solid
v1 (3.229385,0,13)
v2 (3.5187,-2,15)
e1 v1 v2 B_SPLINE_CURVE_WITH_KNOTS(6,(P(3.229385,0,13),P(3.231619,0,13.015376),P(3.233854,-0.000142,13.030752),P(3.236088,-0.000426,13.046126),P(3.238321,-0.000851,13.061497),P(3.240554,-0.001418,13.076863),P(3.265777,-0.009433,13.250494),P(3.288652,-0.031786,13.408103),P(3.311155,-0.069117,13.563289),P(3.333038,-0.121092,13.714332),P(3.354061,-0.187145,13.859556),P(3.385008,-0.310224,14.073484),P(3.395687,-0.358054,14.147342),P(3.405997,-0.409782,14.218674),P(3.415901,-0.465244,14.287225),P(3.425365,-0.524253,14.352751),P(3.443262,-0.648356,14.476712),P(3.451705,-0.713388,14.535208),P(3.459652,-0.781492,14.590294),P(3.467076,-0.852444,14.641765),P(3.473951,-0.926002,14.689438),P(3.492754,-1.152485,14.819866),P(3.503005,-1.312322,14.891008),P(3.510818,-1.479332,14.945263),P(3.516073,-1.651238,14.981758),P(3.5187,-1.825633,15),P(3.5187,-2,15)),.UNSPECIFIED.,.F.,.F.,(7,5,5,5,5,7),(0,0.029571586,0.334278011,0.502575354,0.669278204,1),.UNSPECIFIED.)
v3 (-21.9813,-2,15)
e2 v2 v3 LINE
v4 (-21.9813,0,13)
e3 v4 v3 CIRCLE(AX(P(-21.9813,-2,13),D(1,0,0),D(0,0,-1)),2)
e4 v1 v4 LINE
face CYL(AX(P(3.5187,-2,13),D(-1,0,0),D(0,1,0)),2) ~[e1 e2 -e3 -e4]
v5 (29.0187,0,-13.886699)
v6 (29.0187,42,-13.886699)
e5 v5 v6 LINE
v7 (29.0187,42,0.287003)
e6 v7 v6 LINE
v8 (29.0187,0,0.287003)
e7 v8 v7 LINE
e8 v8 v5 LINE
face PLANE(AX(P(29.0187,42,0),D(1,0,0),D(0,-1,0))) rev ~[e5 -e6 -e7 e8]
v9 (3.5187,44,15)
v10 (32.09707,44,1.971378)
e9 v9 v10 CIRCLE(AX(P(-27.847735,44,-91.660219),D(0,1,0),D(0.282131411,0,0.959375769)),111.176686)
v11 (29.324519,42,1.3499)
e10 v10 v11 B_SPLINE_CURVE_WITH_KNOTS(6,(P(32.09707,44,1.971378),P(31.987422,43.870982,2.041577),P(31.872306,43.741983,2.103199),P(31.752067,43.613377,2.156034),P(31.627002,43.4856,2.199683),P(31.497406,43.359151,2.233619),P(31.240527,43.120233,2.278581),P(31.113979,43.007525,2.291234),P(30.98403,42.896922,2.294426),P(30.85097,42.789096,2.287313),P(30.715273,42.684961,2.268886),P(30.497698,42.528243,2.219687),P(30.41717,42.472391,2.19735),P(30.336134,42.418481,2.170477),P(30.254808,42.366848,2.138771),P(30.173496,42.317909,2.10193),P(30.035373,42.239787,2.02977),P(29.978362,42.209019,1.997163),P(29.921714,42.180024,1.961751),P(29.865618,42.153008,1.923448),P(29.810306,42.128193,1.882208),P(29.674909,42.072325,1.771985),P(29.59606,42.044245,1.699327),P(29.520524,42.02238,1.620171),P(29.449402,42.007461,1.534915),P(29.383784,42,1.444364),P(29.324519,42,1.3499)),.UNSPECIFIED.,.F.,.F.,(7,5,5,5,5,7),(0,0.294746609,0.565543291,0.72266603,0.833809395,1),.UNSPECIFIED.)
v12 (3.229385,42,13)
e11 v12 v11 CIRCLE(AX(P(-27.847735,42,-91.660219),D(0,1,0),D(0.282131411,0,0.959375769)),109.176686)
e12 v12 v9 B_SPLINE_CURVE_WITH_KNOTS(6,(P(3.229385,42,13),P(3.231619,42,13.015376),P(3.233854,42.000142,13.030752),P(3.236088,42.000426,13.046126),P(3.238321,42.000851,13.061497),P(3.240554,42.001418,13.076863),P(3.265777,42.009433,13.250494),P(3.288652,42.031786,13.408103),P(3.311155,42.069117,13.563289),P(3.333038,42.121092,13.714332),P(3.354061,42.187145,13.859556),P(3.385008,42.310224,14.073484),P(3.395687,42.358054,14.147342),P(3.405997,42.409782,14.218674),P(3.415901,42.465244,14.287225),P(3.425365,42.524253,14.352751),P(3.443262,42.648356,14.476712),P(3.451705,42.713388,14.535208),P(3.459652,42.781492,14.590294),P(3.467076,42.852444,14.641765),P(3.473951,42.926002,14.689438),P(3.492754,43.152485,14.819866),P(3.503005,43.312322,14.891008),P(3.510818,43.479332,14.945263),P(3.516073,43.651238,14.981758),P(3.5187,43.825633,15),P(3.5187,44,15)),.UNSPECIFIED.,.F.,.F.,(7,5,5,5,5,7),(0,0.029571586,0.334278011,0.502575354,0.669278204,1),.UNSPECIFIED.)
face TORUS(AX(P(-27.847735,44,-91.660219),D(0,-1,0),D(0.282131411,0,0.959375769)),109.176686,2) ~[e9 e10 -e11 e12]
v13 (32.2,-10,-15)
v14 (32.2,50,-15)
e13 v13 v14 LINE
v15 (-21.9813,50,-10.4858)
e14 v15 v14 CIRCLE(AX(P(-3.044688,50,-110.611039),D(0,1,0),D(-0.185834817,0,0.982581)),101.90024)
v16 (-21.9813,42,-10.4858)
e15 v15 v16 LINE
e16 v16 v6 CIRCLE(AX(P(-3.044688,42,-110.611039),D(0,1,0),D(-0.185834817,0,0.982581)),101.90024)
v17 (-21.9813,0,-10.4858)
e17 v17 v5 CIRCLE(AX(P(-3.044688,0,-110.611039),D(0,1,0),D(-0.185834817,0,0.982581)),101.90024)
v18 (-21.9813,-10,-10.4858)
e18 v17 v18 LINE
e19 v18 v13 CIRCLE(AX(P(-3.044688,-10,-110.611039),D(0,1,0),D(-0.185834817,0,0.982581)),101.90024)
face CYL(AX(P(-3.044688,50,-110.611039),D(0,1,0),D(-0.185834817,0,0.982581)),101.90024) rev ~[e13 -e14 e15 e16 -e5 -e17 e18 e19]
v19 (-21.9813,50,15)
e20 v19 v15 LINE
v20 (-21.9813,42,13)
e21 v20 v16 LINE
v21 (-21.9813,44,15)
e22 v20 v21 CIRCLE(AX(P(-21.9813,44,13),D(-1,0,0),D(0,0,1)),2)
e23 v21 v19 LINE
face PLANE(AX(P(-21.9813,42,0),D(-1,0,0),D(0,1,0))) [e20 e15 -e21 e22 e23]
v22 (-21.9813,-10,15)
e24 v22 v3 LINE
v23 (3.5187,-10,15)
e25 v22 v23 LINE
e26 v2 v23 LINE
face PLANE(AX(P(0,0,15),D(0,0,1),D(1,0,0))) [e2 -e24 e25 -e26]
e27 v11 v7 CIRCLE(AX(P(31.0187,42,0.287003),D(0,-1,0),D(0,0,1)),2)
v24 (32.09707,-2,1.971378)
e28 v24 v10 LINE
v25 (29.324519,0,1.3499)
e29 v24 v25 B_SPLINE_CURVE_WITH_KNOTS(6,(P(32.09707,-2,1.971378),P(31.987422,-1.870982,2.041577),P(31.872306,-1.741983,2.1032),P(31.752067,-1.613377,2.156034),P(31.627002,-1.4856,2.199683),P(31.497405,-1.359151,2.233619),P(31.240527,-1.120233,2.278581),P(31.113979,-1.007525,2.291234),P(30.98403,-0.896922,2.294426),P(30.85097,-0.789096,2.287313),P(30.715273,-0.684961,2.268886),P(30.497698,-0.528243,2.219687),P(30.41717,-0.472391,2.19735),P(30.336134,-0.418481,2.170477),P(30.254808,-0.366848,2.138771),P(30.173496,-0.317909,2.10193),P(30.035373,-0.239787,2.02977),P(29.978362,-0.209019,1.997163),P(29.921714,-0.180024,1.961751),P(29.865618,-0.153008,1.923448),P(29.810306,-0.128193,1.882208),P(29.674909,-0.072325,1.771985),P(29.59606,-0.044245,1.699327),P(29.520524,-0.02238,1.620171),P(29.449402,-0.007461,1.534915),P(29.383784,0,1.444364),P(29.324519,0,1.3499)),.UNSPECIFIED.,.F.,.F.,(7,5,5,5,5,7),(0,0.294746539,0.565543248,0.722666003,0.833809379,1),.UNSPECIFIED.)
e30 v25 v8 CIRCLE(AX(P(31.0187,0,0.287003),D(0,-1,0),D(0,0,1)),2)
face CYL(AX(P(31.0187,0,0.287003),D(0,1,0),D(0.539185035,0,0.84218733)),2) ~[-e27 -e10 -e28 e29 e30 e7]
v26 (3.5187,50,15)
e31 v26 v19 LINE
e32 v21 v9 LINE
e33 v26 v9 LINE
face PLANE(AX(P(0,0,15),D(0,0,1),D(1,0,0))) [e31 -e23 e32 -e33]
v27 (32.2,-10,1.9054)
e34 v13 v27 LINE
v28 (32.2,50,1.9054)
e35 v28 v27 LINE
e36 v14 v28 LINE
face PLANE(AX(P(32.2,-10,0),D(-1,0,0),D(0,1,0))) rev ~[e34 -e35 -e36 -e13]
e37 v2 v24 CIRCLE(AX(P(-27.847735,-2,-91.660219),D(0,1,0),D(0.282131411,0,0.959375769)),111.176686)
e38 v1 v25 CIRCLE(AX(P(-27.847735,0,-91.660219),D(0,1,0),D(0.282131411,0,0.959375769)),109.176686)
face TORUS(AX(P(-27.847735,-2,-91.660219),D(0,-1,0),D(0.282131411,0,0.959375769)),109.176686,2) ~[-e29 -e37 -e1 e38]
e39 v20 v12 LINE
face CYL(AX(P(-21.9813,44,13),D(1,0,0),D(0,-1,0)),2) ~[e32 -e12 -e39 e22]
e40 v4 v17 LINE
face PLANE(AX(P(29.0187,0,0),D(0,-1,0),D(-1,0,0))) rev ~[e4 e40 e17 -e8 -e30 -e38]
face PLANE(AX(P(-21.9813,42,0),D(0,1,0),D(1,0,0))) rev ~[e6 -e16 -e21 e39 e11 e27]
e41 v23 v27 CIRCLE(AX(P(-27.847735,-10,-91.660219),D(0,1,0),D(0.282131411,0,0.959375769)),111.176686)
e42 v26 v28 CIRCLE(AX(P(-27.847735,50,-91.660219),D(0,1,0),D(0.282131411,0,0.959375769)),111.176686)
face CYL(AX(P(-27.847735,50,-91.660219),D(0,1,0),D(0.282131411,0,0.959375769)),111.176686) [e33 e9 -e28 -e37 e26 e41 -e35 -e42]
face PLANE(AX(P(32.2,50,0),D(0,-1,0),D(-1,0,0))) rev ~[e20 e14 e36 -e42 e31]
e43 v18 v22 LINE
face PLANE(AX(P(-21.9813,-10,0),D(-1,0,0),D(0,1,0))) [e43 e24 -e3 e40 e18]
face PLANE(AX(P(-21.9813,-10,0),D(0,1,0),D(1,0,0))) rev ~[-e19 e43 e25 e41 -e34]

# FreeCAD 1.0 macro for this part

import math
import FreeCAD as App
import Part
import Sketcher
Q = App.Units.Quantity


def edges_at(feature, points):
    """Names of the edges that pass closest to the given points."""
    edges = feature.Shape.Edges
    near = lambda p: min(range(len(edges)), key=lambda i: edges[i].distToShape(Part.Vertex(*p))[0])
    return sorted({f"Edge{near(p) + 1}" for p in points})


def add_polygon(sketch, points):
    """Adds a closed chain of lines whose ends are joined by coincident constraints."""
    first, n = sketch.GeometryCount, len(points)
    for a, b in zip(points, points[1:] + points[:1]):
        sketch.addGeometry(Part.LineSegment(App.Vector(*a, 0), App.Vector(*b, 0)), False)
    for i in range(n):
        sketch.addConstraint(Sketcher.Constraint("Coincident", first + i, 2, first + (i + 1) % n, 1))

doc = App.newDocument("Part")
params = doc.addObject("Spreadsheet::Sheet", "Params")
for row, (alias, value) in enumerate([
    ("sketch1_width", "51 mm"),
    ("sketch1_height", "10 mm"),
    ("sketch1_height2", "60 mm"),
    ("sketch1_height3", "8 mm"),
    ("pad1_length", "30 mm"),
    ("sketch2_radius", "101.9 mm"),
    ("fillet_radius", "2 mm"),
], start=1):
    params.set(f"A{row}", alias)
    params.set(f"B{row}", "=" + value)
    params.setAlias(f"B{row}", alias)

body = doc.addObject("PartDesign::Body", "Body")

# Sketch on XY plane
sketch1 = body.newObject("Sketcher::SketchObject", "Sketch")
sketch1.AttachmentSupport = (doc.getObject("XY_Plane"), [""])
sketch1.MapMode = "FlatFace"
add_polygon(sketch1, [(-22, 0), (-22, -10), (32, -10), (32, 50), (-22, 50), (-22, 42), (29, 42), (29, 0)])  # lines 0-7
sketch1.addConstraint([
    Sketcher.Constraint("Vertical", 0),
    Sketcher.Constraint("Horizontal", 1),
    Sketcher.Constraint("Vertical", 2),
    Sketcher.Constraint("Horizontal", 3),
    Sketcher.Constraint("Vertical", 4),
    Sketcher.Constraint("Horizontal", 5),
    Sketcher.Constraint("Vertical", 6),
    Sketcher.Constraint("Horizontal", 7),
    Sketcher.Constraint("PointOnObject", 6, 2, -1),
    Sketcher.Constraint("Vertical", 0, 2, 3, 2),
    Sketcher.Constraint("DistanceX", 5, 1, 5, 2, Q("51 mm")),
    Sketcher.Constraint("DistanceY", 0, 2, 0, 1, Q("10 mm")),
    Sketcher.Constraint("DistanceY", 2, 1, 2, 2, Q("60 mm")),
    Sketcher.Constraint("DistanceY", 4, 2, 4, 1, Q("8 mm")),
    Sketcher.Constraint("DistanceX", -1, 1, 1, 2, Q("32.2 mm")),
    Sketcher.Constraint("DistanceX", 1, 1, 1, 2, Q("54.1813 mm")),
])
sketch1.setExpression("Constraints[18]", "Params.sketch1_width")
sketch1.setExpression("Constraints[19]", "Params.sketch1_height")
sketch1.setExpression("Constraints[20]", "Params.sketch1_height2")
sketch1.setExpression("Constraints[21]", "Params.sketch1_height3")
pad1 = body.newObject("PartDesign::Pad", "Pad")
pad1.Profile = sketch1
pad1.setExpression("Length", "Params.pad1_length")
pad1.Midplane = True

# Sketch on XZ plane
sketch2 = body.newObject("Sketcher::SketchObject", "Sketch001")
sketch2.AttachmentSupport = (doc.getObject("XZ_Plane"), [""])
sketch2.MapMode = "FlatFace"
sketch2.AttachmentOffset = App.Placement(App.Vector(0, 0, -50), App.Rotation())
sketch2.addGeometry([
    Part.ArcOfCircle(Part.Circle(App.Vector(-27.8, -91.7, 0), App.Vector(0, 0, 1), 111.2), math.radians(57.31), math.radians(73.61)),  # 0
    Part.LineSegment(App.Vector(3.5, 15, 0), App.Vector(32.2, 15, 0)),  # 1
    Part.LineSegment(App.Vector(32.2, 15, 0), App.Vector(32.2, 1.9, 0)),  # 2
    Part.LineSegment(App.Vector(-22, -15, 0), App.Vector(-22, -10.5, 0)),  # 3
    Part.ArcOfCircle(Part.Circle(App.Vector(-3, -110.6, 0), App.Vector(0, 0, 1), 101.9), math.radians(70), math.radians(101)),  # 4
    Part.LineSegment(App.Vector(32.2, -15, 0), App.Vector(-22, -15, 0)),  # 5
], False)
sketch2.addConstraint([
    Sketcher.Constraint("Coincident", 0, 2, 1, 1),
    Sketcher.Constraint("Coincident", 1, 2, 2, 1),
    Sketcher.Constraint("Coincident", 2, 2, 0, 1),
    Sketcher.Constraint("Coincident", 3, 2, 4, 2),
    Sketcher.Constraint("Coincident", 4, 1, 5, 1),
    Sketcher.Constraint("Coincident", 5, 2, 3, 1),
    Sketcher.Constraint("Horizontal", 1),
    Sketcher.Constraint("Vertical", 2),
    Sketcher.Constraint("Vertical", 3),
    Sketcher.Constraint("Horizontal", 5),
    Sketcher.Constraint("Symmetric", 1, 2, 4, 1, -1),
    Sketcher.Constraint("Radius", 4, Q("101.9 mm")),
    Sketcher.Constraint("DistanceY", -1, 1, 0, 2, Q("15 mm")),
    Sketcher.Constraint("DistanceX", -1, 1, 1, 2, Q("32.2 mm")),
    Sketcher.Constraint("Radius", 0, Q("111.1767 mm")),
    Sketcher.Constraint("DistanceX", 3, 2, 0, 2, Q("25.5 mm")),
    Sketcher.Constraint("DistanceX", 1, 1, 1, 2, Q("28.6813 mm")),
    Sketcher.Constraint("DistanceY", 2, 2, 2, 1, Q("13.0946 mm")),
    Sketcher.Constraint("DistanceY", 3, 1, 3, 2, Q("4.5142 mm")),
])
sketch2.setExpression("Constraints[11]", "Params.sketch2_radius")
pocket1 = body.newObject("PartDesign::Pocket", "Pocket")
pocket1.Profile = sketch2
pocket1.Type = "ThroughAll"
pocket1.Reversed = True
doc.recompute()

fillet = body.newObject("PartDesign::Fillet", "Fillet")
fillet.Base = (pocket1, edges_at(pocket1, [
    (16.618, 0, 10.237),
    (-9.231, 0, 15),
    (-9.231, 42, 15),
    (16.618, 42, 10.237),
    (29.019, 21, 3.872),
]))
fillet.setExpression("Radius", "Params.fillet_radius")

doc.recompute()
